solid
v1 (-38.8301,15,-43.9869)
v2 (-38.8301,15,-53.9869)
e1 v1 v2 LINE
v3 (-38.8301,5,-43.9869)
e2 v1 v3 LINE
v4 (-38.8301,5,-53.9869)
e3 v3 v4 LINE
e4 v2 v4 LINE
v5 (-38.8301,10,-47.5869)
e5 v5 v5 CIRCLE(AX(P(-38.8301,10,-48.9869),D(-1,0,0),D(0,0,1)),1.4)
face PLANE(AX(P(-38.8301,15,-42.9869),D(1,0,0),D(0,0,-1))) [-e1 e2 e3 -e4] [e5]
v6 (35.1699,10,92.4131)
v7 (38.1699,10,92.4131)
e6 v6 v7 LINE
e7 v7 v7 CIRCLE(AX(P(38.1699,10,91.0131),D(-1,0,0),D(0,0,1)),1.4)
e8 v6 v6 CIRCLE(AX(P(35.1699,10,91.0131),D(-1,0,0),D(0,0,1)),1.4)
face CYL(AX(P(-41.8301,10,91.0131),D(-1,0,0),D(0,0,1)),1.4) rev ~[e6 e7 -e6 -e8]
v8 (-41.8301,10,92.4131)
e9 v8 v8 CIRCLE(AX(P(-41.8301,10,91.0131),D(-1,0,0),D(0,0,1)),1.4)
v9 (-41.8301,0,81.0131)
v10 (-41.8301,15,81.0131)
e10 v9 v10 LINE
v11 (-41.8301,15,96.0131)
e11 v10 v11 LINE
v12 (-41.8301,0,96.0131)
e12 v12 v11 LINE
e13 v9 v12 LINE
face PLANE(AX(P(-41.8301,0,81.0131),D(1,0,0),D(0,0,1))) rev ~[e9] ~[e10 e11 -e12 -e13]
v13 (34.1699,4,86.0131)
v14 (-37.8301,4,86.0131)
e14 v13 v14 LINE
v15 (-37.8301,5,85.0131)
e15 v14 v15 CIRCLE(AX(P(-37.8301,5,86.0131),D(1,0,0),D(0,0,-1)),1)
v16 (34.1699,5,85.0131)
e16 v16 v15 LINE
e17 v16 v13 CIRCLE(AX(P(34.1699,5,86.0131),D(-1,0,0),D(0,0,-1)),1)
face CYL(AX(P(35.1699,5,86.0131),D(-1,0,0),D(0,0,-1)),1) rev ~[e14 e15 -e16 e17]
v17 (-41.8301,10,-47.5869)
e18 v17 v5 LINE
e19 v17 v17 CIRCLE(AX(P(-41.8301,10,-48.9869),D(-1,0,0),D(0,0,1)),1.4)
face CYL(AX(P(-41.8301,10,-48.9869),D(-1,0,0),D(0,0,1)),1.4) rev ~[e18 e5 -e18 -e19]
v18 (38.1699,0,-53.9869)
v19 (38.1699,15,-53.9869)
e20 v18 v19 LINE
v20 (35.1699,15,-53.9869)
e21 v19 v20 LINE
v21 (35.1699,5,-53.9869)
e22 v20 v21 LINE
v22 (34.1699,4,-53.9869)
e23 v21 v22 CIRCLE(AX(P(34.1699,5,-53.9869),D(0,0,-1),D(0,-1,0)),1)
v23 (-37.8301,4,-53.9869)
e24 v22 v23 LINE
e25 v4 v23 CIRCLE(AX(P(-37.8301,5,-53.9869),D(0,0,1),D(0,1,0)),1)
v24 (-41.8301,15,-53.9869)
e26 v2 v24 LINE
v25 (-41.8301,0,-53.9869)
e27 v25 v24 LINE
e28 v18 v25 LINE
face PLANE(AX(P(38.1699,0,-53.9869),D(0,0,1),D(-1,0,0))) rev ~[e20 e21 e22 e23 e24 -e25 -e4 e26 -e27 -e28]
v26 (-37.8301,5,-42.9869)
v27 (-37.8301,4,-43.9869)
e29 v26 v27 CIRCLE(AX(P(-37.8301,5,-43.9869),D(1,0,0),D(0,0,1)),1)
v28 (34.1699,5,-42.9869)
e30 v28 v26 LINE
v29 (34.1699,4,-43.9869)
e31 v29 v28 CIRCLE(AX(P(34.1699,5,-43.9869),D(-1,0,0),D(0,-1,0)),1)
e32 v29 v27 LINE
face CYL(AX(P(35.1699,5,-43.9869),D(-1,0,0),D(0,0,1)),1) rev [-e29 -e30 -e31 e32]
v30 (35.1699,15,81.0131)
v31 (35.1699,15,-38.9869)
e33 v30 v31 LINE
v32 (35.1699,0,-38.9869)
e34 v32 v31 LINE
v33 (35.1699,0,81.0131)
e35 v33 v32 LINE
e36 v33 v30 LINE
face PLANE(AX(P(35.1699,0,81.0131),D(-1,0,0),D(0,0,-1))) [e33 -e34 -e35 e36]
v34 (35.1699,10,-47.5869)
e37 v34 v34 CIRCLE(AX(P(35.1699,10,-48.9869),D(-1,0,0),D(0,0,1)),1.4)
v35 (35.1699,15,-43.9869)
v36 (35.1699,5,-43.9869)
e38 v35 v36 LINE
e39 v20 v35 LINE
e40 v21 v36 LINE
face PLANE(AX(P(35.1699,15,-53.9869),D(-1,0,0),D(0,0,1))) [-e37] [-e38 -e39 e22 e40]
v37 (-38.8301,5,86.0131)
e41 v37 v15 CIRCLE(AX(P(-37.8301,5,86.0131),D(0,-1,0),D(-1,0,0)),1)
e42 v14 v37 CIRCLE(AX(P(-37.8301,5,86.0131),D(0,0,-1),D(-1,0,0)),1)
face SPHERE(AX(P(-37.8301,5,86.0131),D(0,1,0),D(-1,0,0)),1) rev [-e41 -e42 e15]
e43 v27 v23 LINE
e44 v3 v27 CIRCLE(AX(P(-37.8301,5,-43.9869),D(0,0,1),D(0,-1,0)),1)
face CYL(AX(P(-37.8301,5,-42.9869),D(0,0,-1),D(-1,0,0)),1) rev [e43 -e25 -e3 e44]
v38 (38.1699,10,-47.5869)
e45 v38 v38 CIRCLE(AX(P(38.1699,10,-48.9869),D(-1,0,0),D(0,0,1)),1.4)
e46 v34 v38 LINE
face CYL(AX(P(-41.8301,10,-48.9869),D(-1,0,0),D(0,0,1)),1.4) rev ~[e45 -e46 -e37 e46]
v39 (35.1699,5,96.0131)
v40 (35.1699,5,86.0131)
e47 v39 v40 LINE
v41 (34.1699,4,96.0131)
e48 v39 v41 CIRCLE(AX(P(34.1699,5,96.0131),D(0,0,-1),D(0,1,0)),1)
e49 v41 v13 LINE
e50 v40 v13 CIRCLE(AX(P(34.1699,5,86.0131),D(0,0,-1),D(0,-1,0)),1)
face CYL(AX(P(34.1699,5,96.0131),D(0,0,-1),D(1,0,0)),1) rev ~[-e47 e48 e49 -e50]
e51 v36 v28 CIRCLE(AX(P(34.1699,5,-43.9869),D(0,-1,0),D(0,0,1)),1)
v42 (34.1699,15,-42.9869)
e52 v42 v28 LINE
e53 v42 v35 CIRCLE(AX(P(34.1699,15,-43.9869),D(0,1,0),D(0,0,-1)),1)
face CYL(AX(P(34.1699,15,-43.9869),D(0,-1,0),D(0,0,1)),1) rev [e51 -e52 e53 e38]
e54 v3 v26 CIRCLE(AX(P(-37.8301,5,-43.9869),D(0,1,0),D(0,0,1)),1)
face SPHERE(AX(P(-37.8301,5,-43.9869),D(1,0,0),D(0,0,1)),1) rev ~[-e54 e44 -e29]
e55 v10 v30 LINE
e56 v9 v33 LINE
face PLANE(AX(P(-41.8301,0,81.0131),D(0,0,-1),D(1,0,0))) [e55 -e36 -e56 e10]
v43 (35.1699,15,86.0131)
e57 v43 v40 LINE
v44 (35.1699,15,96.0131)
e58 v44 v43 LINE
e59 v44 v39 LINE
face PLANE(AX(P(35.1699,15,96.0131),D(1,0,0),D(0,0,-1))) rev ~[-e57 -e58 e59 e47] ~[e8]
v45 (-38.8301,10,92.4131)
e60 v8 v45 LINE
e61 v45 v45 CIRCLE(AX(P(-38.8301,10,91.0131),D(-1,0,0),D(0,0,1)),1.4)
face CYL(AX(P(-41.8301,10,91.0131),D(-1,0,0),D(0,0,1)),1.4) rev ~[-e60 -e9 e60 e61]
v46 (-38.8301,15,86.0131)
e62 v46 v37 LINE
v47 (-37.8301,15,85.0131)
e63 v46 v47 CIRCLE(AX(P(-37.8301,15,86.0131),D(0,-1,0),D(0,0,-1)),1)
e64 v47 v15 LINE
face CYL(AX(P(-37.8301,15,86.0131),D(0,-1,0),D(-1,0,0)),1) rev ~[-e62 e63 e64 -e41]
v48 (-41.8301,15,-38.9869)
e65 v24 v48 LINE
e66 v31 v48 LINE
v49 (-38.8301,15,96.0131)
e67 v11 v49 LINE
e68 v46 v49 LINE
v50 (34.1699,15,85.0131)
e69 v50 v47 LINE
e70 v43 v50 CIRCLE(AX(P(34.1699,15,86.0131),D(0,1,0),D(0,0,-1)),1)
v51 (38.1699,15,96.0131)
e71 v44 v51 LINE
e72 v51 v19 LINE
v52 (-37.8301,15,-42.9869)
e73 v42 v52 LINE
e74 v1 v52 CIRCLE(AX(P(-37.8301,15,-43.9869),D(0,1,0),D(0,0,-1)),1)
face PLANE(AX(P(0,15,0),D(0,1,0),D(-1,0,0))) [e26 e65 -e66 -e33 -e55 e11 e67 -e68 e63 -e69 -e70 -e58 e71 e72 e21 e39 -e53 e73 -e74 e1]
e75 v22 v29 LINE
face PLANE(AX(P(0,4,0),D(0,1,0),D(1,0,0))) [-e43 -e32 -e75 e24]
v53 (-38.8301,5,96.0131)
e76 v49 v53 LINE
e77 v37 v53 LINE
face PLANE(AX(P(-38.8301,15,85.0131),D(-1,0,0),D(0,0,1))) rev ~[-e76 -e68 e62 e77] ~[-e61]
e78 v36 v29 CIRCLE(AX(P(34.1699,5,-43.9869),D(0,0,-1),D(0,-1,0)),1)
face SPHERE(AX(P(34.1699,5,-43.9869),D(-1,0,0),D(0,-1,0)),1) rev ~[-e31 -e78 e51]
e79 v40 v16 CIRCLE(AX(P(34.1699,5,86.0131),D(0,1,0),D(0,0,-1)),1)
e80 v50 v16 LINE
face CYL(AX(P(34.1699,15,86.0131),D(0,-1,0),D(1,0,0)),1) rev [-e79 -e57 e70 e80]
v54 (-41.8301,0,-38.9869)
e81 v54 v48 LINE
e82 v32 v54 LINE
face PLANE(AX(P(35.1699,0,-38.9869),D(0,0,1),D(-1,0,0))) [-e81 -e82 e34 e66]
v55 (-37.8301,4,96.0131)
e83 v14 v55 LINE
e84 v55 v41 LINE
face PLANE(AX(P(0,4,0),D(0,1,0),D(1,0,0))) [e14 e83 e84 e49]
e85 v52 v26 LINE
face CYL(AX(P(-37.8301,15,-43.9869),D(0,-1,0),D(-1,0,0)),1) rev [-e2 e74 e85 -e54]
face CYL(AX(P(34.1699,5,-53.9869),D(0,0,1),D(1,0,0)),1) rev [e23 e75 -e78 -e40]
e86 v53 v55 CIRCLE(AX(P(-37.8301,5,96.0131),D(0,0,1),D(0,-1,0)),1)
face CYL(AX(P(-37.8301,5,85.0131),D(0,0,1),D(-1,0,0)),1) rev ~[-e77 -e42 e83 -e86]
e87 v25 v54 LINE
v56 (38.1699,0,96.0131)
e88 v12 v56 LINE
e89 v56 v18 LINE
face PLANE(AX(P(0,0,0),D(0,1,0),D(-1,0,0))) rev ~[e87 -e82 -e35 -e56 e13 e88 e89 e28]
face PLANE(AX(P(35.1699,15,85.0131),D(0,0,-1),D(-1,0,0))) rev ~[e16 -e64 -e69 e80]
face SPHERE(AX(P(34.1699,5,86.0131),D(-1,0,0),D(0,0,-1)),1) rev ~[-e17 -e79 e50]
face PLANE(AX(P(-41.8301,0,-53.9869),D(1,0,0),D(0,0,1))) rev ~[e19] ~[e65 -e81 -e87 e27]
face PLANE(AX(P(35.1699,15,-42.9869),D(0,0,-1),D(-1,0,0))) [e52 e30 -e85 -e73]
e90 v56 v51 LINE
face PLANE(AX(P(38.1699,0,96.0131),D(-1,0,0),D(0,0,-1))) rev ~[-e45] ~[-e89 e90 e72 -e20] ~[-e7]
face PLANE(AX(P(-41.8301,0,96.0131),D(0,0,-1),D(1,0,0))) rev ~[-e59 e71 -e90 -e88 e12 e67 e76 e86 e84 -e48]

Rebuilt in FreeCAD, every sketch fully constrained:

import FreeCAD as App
import Part
import Sketcher


def edges_at(feature, points):
    """Names of the edges that pass closest to the given points."""
    edges = feature.Shape.Edges
    near = lambda p: min(range(len(edges)), key=lambda i: edges[i].distToShape(Part.Vertex(*p))[0])
    return sorted({f"Edge{near(p) + 1}" for p in points})


def add_polygon(sketch, points):
    """Adds a closed chain of lines whose ends are joined by coincident constraints."""
    first, n = sketch.GeometryCount, len(points)
    for a, b in zip(points, points[1:] + points[:1]):
        sketch.addGeometry(Part.LineSegment(App.Vector(*a, 0), App.Vector(*b, 0)), False)
    for i in range(n):
        sketch.addConstraint(Sketcher.Constraint("Coincident", first + i, 2, first + (i + 1) % n, 1))

doc = App.newDocument("Part")
body = doc.addObject("PartDesign::Body", "Body")

# Sketch on XZ plane
sketch1 = body.newObject("Sketcher::SketchObject", "Sketch")
sketch1.AttachmentSupport = (doc.getObject("XZ_Plane"), [""])
sketch1.MapMode = "FlatFace"
add_polygon(sketch1, [(-42, 81), (-42, 96), (38, 96), (38, -54), (-42, -54), (-42, -39), (35, -39), (35, 81)])  # lines 0-7
sketch1.addConstraint(Sketcher.Constraint("Vertical", 0))
sketch1.addConstraint(Sketcher.Constraint("Horizontal", 1))
sketch1.addConstraint(Sketcher.Constraint("Vertical", 2))
sketch1.addConstraint(Sketcher.Constraint("Horizontal", 3))
sketch1.addConstraint(Sketcher.Constraint("Vertical", 4))
sketch1.addConstraint(Sketcher.Constraint("Horizontal", 5))
sketch1.addConstraint(Sketcher.Constraint("Vertical", 6))
sketch1.addConstraint(Sketcher.Constraint("Horizontal", 7))
sketch1.addConstraint(Sketcher.Constraint("Vertical", 0, 2, 3, 2))
sketch1.addConstraint(Sketcher.Constraint("Equal", 0, 4))
sketch1.addConstraint(Sketcher.Constraint("DistanceX", 1, 1, 1, 2, 80.0))
sketch1.addConstraint(Sketcher.Constraint("DistanceY", 0, 1, 0, 2, 15.0))
sketch1.addConstraint(Sketcher.Constraint("DistanceY", 2, 2, 2, 1, 150.0))
sketch1.addConstraint(Sketcher.Constraint("DistanceX", 5, 2, 2, 2, 3.0))
sketch1.addConstraint(Sketcher.Constraint("DistanceX", 0, 2, -1, 1, 41.83))
sketch1.addConstraint(Sketcher.Constraint("DistanceY", -1, 1, 0, 2, 96.013))
pad1 = body.newObject("PartDesign::Pad", "Pad")
pad1.Profile = sketch1
pad1.Length = 15
pad1.Reversed = True

# Sketch on XZ plane
sketch2 = body.newObject("Sketcher::SketchObject", "Sketch001")
sketch2.AttachmentSupport = (doc.getObject("XZ_Plane"), [""])
sketch2.MapMode = "FlatFace"
sketch2.AttachmentOffset = App.Placement(App.Vector(0, 0, -15), App.Rotation())
add_polygon(sketch2, [(-39, 85), (-39, 96), (35, 96), (35, 85)])  # lines 0-3
add_polygon(sketch2, [(35, -43), (35, -54), (-39, -54), (-39, -43)])  # lines 4-7
sketch2.addConstraint(Sketcher.Constraint("Vertical", 0))
sketch2.addConstraint(Sketcher.Constraint("Horizontal", 1))
sketch2.addConstraint(Sketcher.Constraint("Vertical", 2))
sketch2.addConstraint(Sketcher.Constraint("Horizontal", 3))
sketch2.addConstraint(Sketcher.Constraint("Vertical", 4))
sketch2.addConstraint(Sketcher.Constraint("Horizontal", 5))
sketch2.addConstraint(Sketcher.Constraint("Vertical", 6))
sketch2.addConstraint(Sketcher.Constraint("Horizontal", 7))
sketch2.addConstraint(Sketcher.Constraint("Vertical", 2, 2, 4, 2))
sketch2.addConstraint(Sketcher.Constraint("Vertical", 3, 2, 5, 2))
sketch2.addConstraint(Sketcher.Constraint("Equal", 2, 4))
sketch2.addConstraint(Sketcher.Constraint("DistanceX", 1, 1, 1, 2, 74.0))
sketch2.addConstraint(Sketcher.Constraint("DistanceY", 0, 1, 0, 2, 11.0))
sketch2.addConstraint(Sketcher.Constraint("DistanceY", 4, 2, 2, 2, 139.0))
sketch2.addConstraint(Sketcher.Constraint("DistanceX", 0, 2, -1, 1, 38.83))
sketch2.addConstraint(Sketcher.Constraint("DistanceY", -1, 1, 0, 2, 96.013))
pocket1 = body.newObject("PartDesign::Pocket", "Pocket")
pocket1.Profile = sketch2
pocket1.Length = 11
pocket1.Reversed = True

# Sketch on YZ plane
sketch3 = body.newObject("Sketcher::SketchObject", "Sketch002")
sketch3.AttachmentSupport = (doc.getObject("YZ_Plane"), [""])
sketch3.MapMode = "FlatFace"
sketch3.AttachmentOffset = App.Placement(App.Vector(0, 0, -41.8301), App.Rotation())
sketch3.addGeometry(Part.Circle(App.Vector(10, -49, 0), App.Vector(0, 0, 1), 1.4), False)
sketch3.addGeometry(Part.Circle(App.Vector(10, 91, 0), App.Vector(0, 0, 1), 1.4), False)
sketch3.addConstraint(Sketcher.Constraint("Equal", 0, 1))
sketch3.addConstraint(Sketcher.Constraint("Vertical", 0, 3, 1, 3))
sketch3.addConstraint(Sketcher.Constraint("Diameter", 0, 2.8))
sketch3.addConstraint(Sketcher.Constraint("DistanceX", -1, 1, 0, 3, 10.0))
sketch3.addConstraint(Sketcher.Constraint("DistanceY", 0, 3, 1, 3, 140.0))
sketch3.addConstraint(Sketcher.Constraint("DistanceY", 0, 3, -1, 1, 48.987))
pocket2 = body.newObject("PartDesign::Pocket", "Pocket001")
pocket2.Profile = sketch3
pocket2.Type = "ThroughAll"
pocket2.Reversed = True
doc.recompute()

fillet = body.newObject("PartDesign::Fillet", "Fillet")
fillet.Base = (pocket2, edges_at(pocket2, [
    (-1.83, 4, -42.987),
    (-38.83, 9.5, -42.987),
    (-38.83, 4, -48.487),
    (35.17, 4, -48.487),
    (35.17, 9.5, -42.987),
]))
fillet.Radius = 1
doc.recompute()

fillet2 = body.newObject("PartDesign::Fillet", "Fillet001")
fillet2.Base = (fillet, edges_at(fillet, [
    (-38.83, 9.5, 85.013),
    (-38.83, 4, 90.513),
    (-1.83, 4, 85.013),
    (35.17, 9.5, 85.013),
    (35.17, 4, 90.513),
]))
fillet2.Radius = 1

doc.recompute()
